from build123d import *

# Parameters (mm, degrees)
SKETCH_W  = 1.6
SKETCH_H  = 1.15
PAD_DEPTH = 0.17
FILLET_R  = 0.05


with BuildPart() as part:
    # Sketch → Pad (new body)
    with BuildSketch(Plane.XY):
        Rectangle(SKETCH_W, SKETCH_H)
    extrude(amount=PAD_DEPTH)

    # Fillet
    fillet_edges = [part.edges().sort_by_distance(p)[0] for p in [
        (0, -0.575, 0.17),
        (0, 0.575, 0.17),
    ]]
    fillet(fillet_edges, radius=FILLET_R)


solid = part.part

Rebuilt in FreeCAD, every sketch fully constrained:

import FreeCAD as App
import Part
import Sketcher

V = App.Vector
Q = App.Units.Quantity


def edges_at(feature, points):
    """Names of the edges that pass closest to the given points."""
    edges = feature.Shape.Edges
    near = lambda p: min(range(len(edges)), key=lambda i: edges[i].distToShape(Part.Vertex(*p))[0])
    return sorted({f"Edge{near(p) + 1}" for p in points})


def add_polygon(sketch, points):
    """Adds a closed chain of lines whose ends are joined by coincident constraints."""
    first, n = sketch.GeometryCount, len(points)
    for a, b in zip(points, points[1:] + points[:1]):
        sketch.addGeometry(Part.LineSegment(App.Vector(*a, 0), App.Vector(*b, 0)), False)
    for i in range(n):
        sketch.addConstraint(Sketcher.Constraint("Coincident", first + i, 2, first + (i + 1) % n, 1))

doc = App.newDocument("Part")
body = doc.addObject("PartDesign::Body", "Body")

sketch1 = doc.addObject("Sketcher::SketchObject", "Sketch")
body.addObject(sketch1)
sketch1.AttachmentSupport = (doc.XY_Plane, [""])
sketch1.MapMode = "FlatFace"
add_polygon(sketch1, [(-0.8, 0.6), (-0.8, -0.6), (0.8, -0.6), (0.8, 0.6)])
sketch1.addConstraint([
    Sketcher.Constraint("Vertical", 0),
    Sketcher.Constraint("Horizontal", 1),
    Sketcher.Constraint("Vertical", 2),
    Sketcher.Constraint("Horizontal", 3),
    Sketcher.Constraint("Symmetric", 0, 2, 2, 2, -1, 1),
    Sketcher.Constraint("DistanceX", 1, 1, 1, 2, Q("1.6 mm")),
    Sketcher.Constraint("DistanceY", 0, 2, 0, 1, Q("1.15 mm")),
])
pad1 = doc.addObject("PartDesign::Pad", "Pad")
body.addObject(pad1)
pad1.Profile = sketch1
pad1.Length = 0.17
doc.recompute()

fillet = doc.addObject("PartDesign::Fillet", "Fillet")
body.addObject(fillet)
fillet.Base = (pad1, edges_at(pad1, [(0, -0.575, 0.17), (0, 0.575, 0.17)]))
fillet.Radius = 0.05

doc.recompute()
